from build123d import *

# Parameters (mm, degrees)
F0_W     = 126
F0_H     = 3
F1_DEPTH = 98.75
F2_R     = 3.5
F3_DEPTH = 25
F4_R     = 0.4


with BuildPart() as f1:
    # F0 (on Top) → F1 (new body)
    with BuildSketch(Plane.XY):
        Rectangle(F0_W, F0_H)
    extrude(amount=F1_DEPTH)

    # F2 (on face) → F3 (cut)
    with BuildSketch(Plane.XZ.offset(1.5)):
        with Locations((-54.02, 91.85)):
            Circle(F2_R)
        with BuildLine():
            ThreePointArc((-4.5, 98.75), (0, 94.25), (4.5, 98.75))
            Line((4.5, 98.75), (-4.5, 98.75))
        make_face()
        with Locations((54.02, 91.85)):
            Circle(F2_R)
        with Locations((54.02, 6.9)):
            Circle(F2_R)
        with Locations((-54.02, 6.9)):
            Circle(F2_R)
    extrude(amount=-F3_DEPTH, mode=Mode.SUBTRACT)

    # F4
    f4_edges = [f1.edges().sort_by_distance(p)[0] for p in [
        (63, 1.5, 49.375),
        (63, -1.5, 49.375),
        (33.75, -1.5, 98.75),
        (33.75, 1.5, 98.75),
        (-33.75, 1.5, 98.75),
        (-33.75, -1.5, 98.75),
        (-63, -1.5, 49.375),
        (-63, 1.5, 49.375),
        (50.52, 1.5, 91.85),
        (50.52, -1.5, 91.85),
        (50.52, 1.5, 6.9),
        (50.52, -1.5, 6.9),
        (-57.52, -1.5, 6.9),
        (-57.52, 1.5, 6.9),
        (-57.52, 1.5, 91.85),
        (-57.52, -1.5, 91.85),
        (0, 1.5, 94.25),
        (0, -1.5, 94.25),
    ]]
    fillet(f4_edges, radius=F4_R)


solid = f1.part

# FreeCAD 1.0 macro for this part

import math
import FreeCAD as App
import Part
import Sketcher

V = App.Vector
Q = App.Units.Quantity


def edges_at(feature, points):
    """Names of the edges that pass closest to the given points."""
    edges = feature.Shape.Edges
    near = lambda p: min(range(len(edges)), key=lambda i: edges[i].distToShape(Part.Vertex(*p))[0])
    return sorted({f"Edge{near(p) + 1}" for p in points})


def add_polygon(sketch, points):
    """Adds a closed chain of lines whose ends are joined by coincident constraints."""
    first, n = sketch.GeometryCount, len(points)
    for a, b in zip(points, points[1:] + points[:1]):
        sketch.addGeometry(Part.LineSegment(App.Vector(*a, 0), App.Vector(*b, 0)), False)
    for i in range(n):
        sketch.addConstraint(Sketcher.Constraint("Coincident", first + i, 2, first + (i + 1) % n, 1))

doc = App.newDocument("Part")
params = doc.addObject("Spreadsheet::Sheet", "Params")
for row, (alias, value) in enumerate([
    ("sketch1_width", "126 mm"),
    ("sketch1_height", "3 mm"),
    ("pad1_length", "98.75 mm"),
    ("sketch2_diameter", "7 mm"),
    ("sketch2_radius", "4.5 mm"),
    ("pocket1_length", "25 mm"),
    ("fillet_radius", "0.4 mm"),
], start=1):
    params.set(f"A{row}", alias)
    params.set(f"B{row}", "=" + value)
    params.setAlias(f"B{row}", alias)

body = doc.addObject("PartDesign::Body", "Body")

# Sketch on XY plane
sketch1 = body.newObject("Sketcher::SketchObject", "Sketch")
sketch1.AttachmentSupport = (doc.getObject("XY_Plane"), [""])
sketch1.MapMode = "FlatFace"
add_polygon(sketch1, [(-63, 1.5), (-63, -1.5), (63, -1.5), (63, 1.5)])  # lines 0-3
sketch1.addConstraint([
    Sketcher.Constraint("Vertical", 0),
    Sketcher.Constraint("Horizontal", 1),
    Sketcher.Constraint("Vertical", 2),
    Sketcher.Constraint("Horizontal", 3),
    Sketcher.Constraint("Symmetric", 0, 2, 2, 2, -1, 1),
    Sketcher.Constraint("DistanceX", 1, 1, 1, 2, Q("126 mm")),
    Sketcher.Constraint("DistanceY", 0, 2, 0, 1, Q("3 mm")),
])
sketch1.setExpression("Constraints[9]", "Params.sketch1_width")
sketch1.setExpression("Constraints[10]", "Params.sketch1_height")
pad1 = body.newObject("PartDesign::Pad", "Pad")
pad1.Profile = sketch1
pad1.setExpression("Length", "Params.pad1_length")

# Sketch on XZ plane
sketch2 = body.newObject("Sketcher::SketchObject", "Sketch001")
sketch2.AttachmentSupport = (doc.getObject("XZ_Plane"), [""])
sketch2.MapMode = "FlatFace"
sketch2.AttachmentOffset = App.Placement(V(0, 0, 1.5), App.Rotation())
sketch2.addGeometry([
    Part.Circle(V(-54.02, 91.85, 0), V(0, 0, 1), 3.5),  # 0
    Part.ArcOfCircle(Part.Circle(V(0, 98.75, 0), V(0, 0, 1), 4.5), math.radians(180), math.radians(360)),  # 1
    Part.LineSegment(V(4.5, 98.75, 0), V(-4.5, 98.75, 0)),  # 2
    Part.Circle(V(54.02, 91.85, 0), V(0, 0, 1), 3.5),  # 3
    Part.Circle(V(54.02, 6.9, 0), V(0, 0, 1), 3.5),  # 4
    Part.Circle(V(-54.02, 6.9, 0), V(0, 0, 1), 3.5),  # 5
], False)
sketch2.addConstraint([
    Sketcher.Constraint("Coincident", 1, 1, 2, 2),
    Sketcher.Constraint("Coincident", 2, 1, 1, 2),
    Sketcher.Constraint("Horizontal", 2),
    Sketcher.Constraint("Equal", 0, 3),
    Sketcher.Constraint("Equal", 3, 4),
    Sketcher.Constraint("Equal", 4, 5),
    Sketcher.Constraint("Symmetric", 0, 3, 3, 3, -2),
    Sketcher.Constraint("Symmetric", 4, 3, 5, 3, -2),
    Sketcher.Constraint("PointOnObject", 1, 3, -2),
    Sketcher.Constraint("Vertical", 3, 3, 4, 3),
    Sketcher.Constraint("Diameter", 0, Q("7 mm")),
    Sketcher.Constraint("Radius", 1, Q("4.5 mm")),
    Sketcher.Constraint("DistanceY", -1, 1, 4, 3, Q("6.9 mm")),
    Sketcher.Constraint("DistanceY", 0, 3, 1, 3, Q("6.9 mm")),
    Sketcher.Constraint("DistanceY", 0, 3, 1, 1, Q("6.9 mm")),
    Sketcher.Constraint("DistanceX", 0, 3, -1, 1, Q("54.02 mm")),
    Sketcher.Constraint("DistanceY", -1, 1, 0, 3, Q("91.85 mm")),
])
sketch2.setExpression("Constraints[10]", "Params.sketch2_diameter")
sketch2.setExpression("Constraints[11]", "Params.sketch2_radius")
pocket1 = body.newObject("PartDesign::Pocket", "Pocket")
pocket1.Profile = sketch2
pocket1.setExpression("Length", "Params.pocket1_length")
doc.recompute()

fillet = body.newObject("PartDesign::Fillet", "Fillet")
fillet.Base = (pocket1, edges_at(pocket1, [
    (63, 1.5, 49.375),
    (63, -1.5, 49.375),
    (33.75, -1.5, 98.75),
    (33.75, 1.5, 98.75),
    (-33.75, 1.5, 98.75),
    (-33.75, -1.5, 98.75),
    (-63, -1.5, 49.375),
    (-63, 1.5, 49.375),
    (50.52, 1.5, 91.85),
    (50.52, -1.5, 91.85),
    (50.52, 1.5, 6.9),
    (50.52, -1.5, 6.9),
    (-57.52, -1.5, 6.9),
    (-57.52, 1.5, 6.9),
    (-57.52, 1.5, 91.85),
    (-57.52, -1.5, 91.85),
    (0, 1.5, 94.25),
    (0, -1.5, 94.25),
]))
fillet.setExpression("Radius", "Params.fillet_radius")

doc.recompute()
